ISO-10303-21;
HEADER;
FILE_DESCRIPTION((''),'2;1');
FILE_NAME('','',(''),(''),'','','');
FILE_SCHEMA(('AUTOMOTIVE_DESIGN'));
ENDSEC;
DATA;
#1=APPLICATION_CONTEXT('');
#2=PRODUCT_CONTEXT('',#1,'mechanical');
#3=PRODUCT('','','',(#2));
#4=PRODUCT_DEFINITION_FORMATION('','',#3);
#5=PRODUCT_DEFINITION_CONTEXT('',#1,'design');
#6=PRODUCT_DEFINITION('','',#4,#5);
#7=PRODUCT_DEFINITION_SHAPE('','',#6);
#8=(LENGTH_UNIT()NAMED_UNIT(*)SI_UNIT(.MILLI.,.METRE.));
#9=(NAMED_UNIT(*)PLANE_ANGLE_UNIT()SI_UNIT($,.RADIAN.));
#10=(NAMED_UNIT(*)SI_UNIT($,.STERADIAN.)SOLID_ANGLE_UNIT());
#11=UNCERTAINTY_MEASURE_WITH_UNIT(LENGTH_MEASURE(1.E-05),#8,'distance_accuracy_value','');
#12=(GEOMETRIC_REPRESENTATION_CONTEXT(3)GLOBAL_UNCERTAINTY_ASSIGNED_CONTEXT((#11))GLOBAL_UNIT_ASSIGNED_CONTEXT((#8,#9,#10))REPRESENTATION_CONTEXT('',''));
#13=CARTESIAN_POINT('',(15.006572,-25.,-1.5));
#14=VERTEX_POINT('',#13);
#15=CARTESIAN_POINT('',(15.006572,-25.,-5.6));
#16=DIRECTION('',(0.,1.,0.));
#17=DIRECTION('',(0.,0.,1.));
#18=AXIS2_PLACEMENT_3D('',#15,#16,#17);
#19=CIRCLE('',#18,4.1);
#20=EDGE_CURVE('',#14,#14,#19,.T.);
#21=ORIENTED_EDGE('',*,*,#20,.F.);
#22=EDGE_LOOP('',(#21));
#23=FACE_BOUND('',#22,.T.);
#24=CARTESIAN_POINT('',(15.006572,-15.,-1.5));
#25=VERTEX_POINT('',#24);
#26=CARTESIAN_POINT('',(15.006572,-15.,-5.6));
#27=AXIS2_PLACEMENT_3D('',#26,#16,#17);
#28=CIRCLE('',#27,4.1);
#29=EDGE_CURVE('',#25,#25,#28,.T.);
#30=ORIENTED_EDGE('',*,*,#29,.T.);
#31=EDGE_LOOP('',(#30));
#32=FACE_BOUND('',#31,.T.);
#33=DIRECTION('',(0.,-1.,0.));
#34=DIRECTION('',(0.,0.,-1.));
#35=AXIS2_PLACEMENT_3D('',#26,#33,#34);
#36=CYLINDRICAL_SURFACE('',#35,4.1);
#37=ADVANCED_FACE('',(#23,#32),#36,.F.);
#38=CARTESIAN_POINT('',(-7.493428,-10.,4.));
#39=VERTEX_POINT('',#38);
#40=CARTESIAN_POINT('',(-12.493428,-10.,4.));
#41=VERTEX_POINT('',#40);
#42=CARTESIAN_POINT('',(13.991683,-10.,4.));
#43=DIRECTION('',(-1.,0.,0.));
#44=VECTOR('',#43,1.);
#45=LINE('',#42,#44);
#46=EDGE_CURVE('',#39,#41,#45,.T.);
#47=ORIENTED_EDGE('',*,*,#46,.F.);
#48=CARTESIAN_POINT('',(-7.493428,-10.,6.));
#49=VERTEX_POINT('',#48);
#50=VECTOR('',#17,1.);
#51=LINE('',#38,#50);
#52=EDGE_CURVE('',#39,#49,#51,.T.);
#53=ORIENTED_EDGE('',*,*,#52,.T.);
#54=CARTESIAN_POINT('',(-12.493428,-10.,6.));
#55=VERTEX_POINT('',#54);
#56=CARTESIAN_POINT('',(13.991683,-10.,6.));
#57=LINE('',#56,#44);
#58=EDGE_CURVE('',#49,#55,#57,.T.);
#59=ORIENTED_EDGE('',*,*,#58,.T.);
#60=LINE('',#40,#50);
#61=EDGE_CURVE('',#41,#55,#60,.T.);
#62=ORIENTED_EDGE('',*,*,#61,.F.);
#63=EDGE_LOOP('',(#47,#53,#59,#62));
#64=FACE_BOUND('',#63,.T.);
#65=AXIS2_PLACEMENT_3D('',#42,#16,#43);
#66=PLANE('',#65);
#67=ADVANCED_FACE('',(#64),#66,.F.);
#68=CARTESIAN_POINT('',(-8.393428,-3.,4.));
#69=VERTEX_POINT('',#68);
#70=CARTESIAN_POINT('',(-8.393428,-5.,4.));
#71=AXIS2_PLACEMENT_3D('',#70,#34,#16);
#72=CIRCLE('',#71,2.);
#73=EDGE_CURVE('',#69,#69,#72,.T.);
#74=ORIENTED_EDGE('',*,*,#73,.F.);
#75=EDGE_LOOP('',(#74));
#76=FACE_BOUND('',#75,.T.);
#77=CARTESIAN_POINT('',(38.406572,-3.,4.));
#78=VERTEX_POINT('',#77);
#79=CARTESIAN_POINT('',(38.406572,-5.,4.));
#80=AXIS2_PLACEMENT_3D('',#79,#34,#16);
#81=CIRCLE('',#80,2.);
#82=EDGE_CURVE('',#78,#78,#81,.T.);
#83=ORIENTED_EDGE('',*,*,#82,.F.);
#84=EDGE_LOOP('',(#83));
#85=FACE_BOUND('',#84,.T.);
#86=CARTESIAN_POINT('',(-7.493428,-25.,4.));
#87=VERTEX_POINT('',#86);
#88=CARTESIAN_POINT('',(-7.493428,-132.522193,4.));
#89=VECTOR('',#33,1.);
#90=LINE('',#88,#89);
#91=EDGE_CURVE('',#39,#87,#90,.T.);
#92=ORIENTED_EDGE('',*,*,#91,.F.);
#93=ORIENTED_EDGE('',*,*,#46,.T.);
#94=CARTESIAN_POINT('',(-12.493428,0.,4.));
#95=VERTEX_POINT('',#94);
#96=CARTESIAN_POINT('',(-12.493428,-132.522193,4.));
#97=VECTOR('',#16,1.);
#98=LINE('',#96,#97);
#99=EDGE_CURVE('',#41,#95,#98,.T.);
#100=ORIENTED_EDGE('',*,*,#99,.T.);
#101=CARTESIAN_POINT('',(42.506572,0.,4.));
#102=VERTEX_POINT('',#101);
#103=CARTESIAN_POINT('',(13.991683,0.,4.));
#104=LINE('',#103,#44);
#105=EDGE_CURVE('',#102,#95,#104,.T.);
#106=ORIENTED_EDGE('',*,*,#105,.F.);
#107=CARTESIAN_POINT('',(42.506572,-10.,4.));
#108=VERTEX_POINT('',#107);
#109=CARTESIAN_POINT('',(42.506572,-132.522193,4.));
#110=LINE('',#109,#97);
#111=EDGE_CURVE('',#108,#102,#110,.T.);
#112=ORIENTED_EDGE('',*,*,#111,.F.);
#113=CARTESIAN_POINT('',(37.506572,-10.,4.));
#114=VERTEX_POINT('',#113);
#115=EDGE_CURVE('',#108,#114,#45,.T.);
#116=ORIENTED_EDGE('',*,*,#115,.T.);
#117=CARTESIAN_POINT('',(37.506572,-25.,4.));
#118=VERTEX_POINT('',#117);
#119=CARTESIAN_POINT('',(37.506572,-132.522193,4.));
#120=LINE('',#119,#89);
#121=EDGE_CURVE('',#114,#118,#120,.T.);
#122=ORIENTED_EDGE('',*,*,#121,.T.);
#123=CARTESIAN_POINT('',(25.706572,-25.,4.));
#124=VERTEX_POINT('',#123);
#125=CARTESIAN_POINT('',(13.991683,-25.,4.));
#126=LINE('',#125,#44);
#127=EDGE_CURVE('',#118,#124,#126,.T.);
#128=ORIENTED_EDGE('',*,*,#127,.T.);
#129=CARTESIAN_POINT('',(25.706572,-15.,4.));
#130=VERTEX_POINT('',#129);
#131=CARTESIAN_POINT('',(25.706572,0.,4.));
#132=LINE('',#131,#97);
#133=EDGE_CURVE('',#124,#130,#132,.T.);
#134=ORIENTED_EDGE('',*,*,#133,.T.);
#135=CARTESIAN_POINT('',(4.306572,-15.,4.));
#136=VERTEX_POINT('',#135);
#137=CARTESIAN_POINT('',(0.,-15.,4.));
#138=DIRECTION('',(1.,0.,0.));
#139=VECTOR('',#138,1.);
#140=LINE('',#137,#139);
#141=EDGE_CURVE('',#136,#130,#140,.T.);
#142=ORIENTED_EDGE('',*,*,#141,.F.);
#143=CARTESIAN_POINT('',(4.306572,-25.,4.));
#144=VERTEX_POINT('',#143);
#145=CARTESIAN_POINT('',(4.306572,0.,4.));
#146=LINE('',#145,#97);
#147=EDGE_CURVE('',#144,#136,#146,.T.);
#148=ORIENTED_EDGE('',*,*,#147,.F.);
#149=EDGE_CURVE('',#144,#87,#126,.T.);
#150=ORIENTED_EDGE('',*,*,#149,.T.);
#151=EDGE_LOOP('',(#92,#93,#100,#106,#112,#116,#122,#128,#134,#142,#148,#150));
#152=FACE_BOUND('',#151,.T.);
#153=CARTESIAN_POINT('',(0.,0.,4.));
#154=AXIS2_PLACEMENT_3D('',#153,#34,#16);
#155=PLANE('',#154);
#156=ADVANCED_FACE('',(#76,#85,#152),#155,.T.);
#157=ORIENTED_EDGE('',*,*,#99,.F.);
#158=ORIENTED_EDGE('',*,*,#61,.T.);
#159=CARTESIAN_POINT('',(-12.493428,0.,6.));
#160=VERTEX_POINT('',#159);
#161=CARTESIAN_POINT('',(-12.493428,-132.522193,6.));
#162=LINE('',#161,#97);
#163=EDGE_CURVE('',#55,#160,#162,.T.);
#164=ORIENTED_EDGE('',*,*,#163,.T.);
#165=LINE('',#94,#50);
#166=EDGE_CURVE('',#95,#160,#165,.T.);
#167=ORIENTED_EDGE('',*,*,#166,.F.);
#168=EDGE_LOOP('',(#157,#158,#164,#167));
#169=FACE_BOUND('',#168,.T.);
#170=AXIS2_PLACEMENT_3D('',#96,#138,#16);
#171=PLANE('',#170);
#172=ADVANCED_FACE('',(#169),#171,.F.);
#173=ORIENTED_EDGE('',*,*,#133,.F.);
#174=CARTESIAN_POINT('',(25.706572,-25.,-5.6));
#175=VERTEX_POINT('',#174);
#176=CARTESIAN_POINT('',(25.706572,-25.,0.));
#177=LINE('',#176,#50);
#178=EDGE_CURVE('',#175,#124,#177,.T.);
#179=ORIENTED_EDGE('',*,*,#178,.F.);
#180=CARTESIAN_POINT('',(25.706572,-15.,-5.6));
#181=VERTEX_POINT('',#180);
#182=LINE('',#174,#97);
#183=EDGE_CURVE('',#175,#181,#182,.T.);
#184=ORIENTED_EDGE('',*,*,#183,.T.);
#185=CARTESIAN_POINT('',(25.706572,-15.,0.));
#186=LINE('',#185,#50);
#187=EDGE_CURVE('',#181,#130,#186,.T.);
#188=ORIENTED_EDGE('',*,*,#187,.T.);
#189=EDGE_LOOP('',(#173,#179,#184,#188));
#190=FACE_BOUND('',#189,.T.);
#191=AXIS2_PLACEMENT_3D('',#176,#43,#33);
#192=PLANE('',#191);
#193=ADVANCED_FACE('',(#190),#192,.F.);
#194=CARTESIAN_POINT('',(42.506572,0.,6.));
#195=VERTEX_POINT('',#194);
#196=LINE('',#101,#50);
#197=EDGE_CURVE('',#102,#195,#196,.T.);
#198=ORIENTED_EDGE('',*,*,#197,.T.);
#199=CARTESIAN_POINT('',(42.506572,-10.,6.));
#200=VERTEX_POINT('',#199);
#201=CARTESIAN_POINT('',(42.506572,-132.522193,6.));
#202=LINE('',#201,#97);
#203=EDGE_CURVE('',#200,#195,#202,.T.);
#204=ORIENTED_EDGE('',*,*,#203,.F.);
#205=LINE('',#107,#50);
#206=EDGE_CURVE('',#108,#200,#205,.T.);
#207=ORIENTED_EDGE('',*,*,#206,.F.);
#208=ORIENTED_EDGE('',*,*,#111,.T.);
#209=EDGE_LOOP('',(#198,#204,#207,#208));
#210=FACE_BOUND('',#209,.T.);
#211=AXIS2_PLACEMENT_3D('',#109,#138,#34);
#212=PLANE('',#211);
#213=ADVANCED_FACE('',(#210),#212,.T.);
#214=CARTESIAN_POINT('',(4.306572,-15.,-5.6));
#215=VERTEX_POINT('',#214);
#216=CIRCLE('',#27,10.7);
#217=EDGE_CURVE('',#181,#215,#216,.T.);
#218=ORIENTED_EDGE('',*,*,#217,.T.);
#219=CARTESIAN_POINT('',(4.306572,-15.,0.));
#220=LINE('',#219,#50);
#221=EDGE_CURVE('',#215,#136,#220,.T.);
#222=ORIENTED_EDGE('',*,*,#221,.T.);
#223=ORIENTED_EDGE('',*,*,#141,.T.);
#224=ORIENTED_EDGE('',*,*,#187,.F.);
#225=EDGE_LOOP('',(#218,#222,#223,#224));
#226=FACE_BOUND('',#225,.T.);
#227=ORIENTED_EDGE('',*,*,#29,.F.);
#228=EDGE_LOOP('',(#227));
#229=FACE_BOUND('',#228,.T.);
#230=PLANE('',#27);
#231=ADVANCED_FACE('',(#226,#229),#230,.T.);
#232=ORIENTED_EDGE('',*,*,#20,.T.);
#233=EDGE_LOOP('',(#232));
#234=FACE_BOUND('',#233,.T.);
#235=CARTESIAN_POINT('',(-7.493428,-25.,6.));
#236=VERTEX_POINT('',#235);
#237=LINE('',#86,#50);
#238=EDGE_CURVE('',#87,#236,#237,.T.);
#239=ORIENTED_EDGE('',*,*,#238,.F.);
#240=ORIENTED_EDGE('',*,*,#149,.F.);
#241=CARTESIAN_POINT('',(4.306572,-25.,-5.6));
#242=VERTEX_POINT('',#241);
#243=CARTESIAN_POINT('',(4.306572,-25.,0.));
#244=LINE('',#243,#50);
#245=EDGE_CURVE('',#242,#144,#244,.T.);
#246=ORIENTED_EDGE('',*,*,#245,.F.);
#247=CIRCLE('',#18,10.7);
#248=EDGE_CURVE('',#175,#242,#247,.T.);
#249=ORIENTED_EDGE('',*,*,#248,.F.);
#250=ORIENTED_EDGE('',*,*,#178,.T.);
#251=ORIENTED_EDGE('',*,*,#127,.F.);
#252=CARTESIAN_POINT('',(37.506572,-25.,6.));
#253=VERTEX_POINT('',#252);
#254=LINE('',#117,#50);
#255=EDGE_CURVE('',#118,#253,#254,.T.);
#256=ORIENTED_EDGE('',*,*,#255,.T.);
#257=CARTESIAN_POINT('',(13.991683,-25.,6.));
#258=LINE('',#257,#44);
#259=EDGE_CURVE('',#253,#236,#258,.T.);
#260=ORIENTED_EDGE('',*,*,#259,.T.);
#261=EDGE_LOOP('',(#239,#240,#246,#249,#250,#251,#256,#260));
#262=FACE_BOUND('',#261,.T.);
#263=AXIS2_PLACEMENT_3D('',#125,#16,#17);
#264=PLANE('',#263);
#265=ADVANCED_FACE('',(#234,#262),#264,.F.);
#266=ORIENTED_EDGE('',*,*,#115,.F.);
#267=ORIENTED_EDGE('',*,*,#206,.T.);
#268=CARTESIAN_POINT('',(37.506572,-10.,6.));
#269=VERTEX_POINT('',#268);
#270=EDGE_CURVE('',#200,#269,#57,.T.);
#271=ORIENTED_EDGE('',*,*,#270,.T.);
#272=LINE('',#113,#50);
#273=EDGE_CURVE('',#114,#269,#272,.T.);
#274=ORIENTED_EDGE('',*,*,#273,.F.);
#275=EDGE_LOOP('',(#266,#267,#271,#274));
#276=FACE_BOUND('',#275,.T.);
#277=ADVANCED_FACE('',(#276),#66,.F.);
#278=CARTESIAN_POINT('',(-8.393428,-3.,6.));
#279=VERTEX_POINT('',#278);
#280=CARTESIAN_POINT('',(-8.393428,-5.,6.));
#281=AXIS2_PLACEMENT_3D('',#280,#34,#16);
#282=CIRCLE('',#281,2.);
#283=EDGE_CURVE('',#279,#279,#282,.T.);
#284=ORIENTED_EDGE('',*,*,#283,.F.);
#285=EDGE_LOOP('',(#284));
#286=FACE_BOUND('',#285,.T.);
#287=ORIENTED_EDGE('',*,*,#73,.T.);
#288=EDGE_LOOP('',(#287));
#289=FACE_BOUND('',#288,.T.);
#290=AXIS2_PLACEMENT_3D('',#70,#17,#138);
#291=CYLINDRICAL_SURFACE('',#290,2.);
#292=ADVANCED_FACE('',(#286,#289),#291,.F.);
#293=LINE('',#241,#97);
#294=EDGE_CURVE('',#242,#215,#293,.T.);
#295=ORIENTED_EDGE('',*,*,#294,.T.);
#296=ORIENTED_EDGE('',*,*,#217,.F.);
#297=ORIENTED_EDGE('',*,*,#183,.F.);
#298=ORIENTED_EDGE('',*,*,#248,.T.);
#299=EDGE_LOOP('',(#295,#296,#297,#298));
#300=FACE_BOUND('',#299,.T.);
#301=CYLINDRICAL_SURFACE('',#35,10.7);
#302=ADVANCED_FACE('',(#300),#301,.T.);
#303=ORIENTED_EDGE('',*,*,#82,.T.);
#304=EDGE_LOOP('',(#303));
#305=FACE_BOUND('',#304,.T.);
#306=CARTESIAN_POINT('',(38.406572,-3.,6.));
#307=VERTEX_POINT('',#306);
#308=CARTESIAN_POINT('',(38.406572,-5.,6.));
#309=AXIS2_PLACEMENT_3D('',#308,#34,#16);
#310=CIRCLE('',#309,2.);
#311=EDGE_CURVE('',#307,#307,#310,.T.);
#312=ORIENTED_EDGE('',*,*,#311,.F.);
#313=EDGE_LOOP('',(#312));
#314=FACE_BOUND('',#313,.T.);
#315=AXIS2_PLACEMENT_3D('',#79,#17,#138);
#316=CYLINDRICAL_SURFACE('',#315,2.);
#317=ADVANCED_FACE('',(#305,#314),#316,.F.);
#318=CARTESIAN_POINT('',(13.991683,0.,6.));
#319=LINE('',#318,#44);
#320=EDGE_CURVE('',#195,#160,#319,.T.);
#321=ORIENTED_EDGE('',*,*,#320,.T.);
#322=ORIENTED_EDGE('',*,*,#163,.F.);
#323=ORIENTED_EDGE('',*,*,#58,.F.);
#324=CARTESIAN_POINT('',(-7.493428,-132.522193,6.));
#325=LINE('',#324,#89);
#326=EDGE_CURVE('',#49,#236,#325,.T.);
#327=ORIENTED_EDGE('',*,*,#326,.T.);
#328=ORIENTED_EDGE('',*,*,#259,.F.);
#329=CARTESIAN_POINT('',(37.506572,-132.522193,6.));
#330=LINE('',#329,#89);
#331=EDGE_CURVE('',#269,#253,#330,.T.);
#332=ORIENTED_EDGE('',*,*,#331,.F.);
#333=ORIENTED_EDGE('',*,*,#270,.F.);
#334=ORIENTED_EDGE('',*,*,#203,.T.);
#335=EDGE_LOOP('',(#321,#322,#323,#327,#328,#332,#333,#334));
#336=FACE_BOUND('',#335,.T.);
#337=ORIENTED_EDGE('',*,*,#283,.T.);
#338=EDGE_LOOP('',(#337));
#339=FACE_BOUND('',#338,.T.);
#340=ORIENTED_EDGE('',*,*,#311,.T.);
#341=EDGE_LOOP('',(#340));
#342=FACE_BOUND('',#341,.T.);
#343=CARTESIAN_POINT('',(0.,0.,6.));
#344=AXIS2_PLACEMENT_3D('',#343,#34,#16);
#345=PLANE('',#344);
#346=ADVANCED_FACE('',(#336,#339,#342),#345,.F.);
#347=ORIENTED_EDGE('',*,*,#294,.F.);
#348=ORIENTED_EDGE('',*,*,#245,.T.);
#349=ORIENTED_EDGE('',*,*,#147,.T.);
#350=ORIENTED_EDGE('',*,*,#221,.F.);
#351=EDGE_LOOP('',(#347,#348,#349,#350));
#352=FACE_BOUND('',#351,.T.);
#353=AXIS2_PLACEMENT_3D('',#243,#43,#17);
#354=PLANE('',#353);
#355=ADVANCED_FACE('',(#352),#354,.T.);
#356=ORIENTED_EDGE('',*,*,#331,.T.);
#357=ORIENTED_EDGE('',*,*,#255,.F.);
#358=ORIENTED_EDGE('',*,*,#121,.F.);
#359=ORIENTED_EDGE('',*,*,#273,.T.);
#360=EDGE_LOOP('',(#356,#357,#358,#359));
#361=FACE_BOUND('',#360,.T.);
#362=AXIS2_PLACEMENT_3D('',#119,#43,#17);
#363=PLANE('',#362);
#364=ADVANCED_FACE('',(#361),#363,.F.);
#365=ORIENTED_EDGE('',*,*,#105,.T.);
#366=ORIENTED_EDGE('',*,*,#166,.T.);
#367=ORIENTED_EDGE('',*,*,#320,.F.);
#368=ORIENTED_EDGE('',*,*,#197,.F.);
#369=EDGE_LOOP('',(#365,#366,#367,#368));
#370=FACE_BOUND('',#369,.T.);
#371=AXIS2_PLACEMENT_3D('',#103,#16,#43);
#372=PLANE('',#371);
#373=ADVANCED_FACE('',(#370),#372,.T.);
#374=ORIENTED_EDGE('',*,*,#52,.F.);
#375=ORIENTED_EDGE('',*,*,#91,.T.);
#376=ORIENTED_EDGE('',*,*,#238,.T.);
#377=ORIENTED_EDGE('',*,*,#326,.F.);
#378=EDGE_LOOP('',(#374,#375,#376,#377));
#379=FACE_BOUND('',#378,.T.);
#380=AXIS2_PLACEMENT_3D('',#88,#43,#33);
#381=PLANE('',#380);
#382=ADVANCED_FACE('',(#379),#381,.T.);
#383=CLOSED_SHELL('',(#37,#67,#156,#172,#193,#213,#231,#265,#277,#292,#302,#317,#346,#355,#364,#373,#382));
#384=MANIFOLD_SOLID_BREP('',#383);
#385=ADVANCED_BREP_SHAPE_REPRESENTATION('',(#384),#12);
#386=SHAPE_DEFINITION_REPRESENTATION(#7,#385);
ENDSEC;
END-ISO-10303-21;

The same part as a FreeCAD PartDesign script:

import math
import FreeCAD as App
import Part
import Sketcher


def add_polygon(sketch, points):
    """Adds a closed chain of lines whose ends are joined by coincident constraints."""
    first, n = sketch.GeometryCount, len(points)
    for a, b in zip(points, points[1:] + points[:1]):
        sketch.addGeometry(Part.LineSegment(App.Vector(*a, 0), App.Vector(*b, 0)), False)
    for i in range(n):
        sketch.addConstraint(Sketcher.Constraint("Coincident", first + i, 2, first + (i + 1) % n, 1))

doc = App.newDocument("Part")
body = doc.addObject("PartDesign::Body", "Body")

# Sketch on XY plane
sketch1 = body.newObject("Sketcher::SketchObject", "Sketch")
sketch1.AttachmentSupport = (doc.getObject("XY_Plane"), [""])
sketch1.MapMode = "FlatFace"
sketch1.AttachmentOffset = App.Placement(App.Vector(0, 0, 4), App.Rotation())
add_polygon(sketch1, [(-7.5, -10), (-7.5, -25), (37.5, -25), (37.5, -10), (42.5, -10), (42.5, 0), (-12.5, 0), (-12.5, -10)])  # lines 0-7
sketch1.addGeometry(Part.Circle(App.Vector(38.4, -5, 0), App.Vector(0, 0, 1), 2), False)  # 8
sketch1.addGeometry(Part.Circle(App.Vector(-8.4, -5, 0), App.Vector(0, 0, 1), 2), False)  # 9
sketch1.addConstraint([
    Sketcher.Constraint("Vertical", 0),
    Sketcher.Constraint("Horizontal", 1),
    Sketcher.Constraint("Vertical", 2),
    Sketcher.Constraint("Horizontal", 3),
    Sketcher.Constraint("Vertical", 4),
    Sketcher.Constraint("Horizontal", 5),
    Sketcher.Constraint("Vertical", 6),
    Sketcher.Constraint("Horizontal", 7),
    Sketcher.Constraint("Equal", 8, 9),
    Sketcher.Constraint("PointOnObject", 4, 2, -1),
    Sketcher.Constraint("Horizontal", 8, 3, 9, 3),
    Sketcher.Constraint("Horizontal", 3, 2, 6, 2),
    Sketcher.Constraint("Equal", 3, 7),
    Sketcher.Constraint("Diameter", 8, 4.0),
    Sketcher.Constraint("DistanceX", 1, 1, 1, 2, 45.0),
    Sketcher.Constraint("DistanceX", 3, 1, 3, 2, 5.0),
    Sketcher.Constraint("DistanceY", 0, 2, 0, 1, 15.0),
    Sketcher.Constraint("DistanceY", 4, 1, 4, 2, 10.0),
    Sketcher.Constraint("DistanceY", 8, 3, -1, 1, 5.0),
    Sketcher.Constraint("DistanceX", 9, 3, 8, 3, 46.8),
    Sketcher.Constraint("DistanceX", 9, 3, 0, 2, 0.9),
    Sketcher.Constraint("DistanceX", -1, 1, 8, 3, 38.406572),
])
pad1 = body.newObject("PartDesign::Pad", "Pad")
pad1.Profile = sketch1
pad1.Length = 2

# Sketch on XZ plane
sketch2 = body.newObject("Sketcher::SketchObject", "Sketch001")
sketch2.AttachmentSupport = (doc.getObject("XZ_Plane"), [""])
sketch2.MapMode = "FlatFace"
sketch2.AttachmentOffset = App.Placement(App.Vector(0, 0, 25), App.Rotation())
sketch2.addGeometry([
    Part.Circle(App.Vector(15, -5.6, 0), App.Vector(0, 0, 1), 10.7),
    Part.Circle(App.Vector(15, -5.6, 0), App.Vector(0, 0, 1), 4.1),
], False)
sketch2.addConstraint([
    Sketcher.Constraint("Coincident", 1, 3, 0, 3),
    Sketcher.Constraint("Diameter", 0, 21.4),
    Sketcher.Constraint("Diameter", 1, 8.2),
    Sketcher.Constraint("DistanceY", 0, 3, -1, 1, 5.6),
    Sketcher.Constraint("DistanceX", -1, 1, 0, 3, 15.006572),
])
pad2 = body.newObject("PartDesign::Pad", "Pad001")
pad2.Profile = sketch2
pad2.Length = 10
pad2.Reversed = True

# Sketch on XZ plane
sketch3 = body.newObject("Sketcher::SketchObject", "Sketch002")
sketch3.AttachmentSupport = (doc.getObject("XZ_Plane"), [""])
sketch3.MapMode = "FlatFace"
sketch3.AttachmentOffset = App.Placement(App.Vector(0, 0, 25), App.Rotation())
sketch3.addGeometry([
    Part.LineSegment(App.Vector(25.7, -5.6, 0), App.Vector(19.1, -5.6, 0)),  # 0
    Part.ArcOfCircle(Part.Circle(App.Vector(15, -5.6, 0), App.Vector(0, 0, 1), 4.1), math.radians(0), math.radians(180)),  # 1
    Part.LineSegment(App.Vector(10.9, -5.6, 0), App.Vector(4.3, -5.6, 0)),  # 2
    Part.LineSegment(App.Vector(4.3, -5.6, 0), App.Vector(4.3, 6, 0)),  # 3
    Part.LineSegment(App.Vector(4.3, 6, 0), App.Vector(25.7, 6, 0)),  # 4
    Part.LineSegment(App.Vector(25.7, 6, 0), App.Vector(25.7, -5.6, 0)),  # 5
], False)
sketch3.addConstraint([
    Sketcher.Constraint("Coincident", 0, 2, 1, 1),
    Sketcher.Constraint("Coincident", 1, 2, 2, 1),
    Sketcher.Constraint("Coincident", 2, 2, 3, 1),
    Sketcher.Constraint("Coincident", 3, 2, 4, 1),
    Sketcher.Constraint("Coincident", 4, 2, 5, 1),
    Sketcher.Constraint("Coincident", 5, 2, 0, 1),
    Sketcher.Constraint("Horizontal", 0),
    Sketcher.Constraint("Horizontal", 2),
    Sketcher.Constraint("Vertical", 3),
    Sketcher.Constraint("Horizontal", 4),
    Sketcher.Constraint("Vertical", 5),
    Sketcher.Constraint("Horizontal", 1, 3, 0, 2),
    Sketcher.Constraint("Horizontal", 0, 2, 1, 2),
    Sketcher.Constraint("Equal", 0, 2),
    Sketcher.Constraint("Radius", 1, 4.1),
    Sketcher.Constraint("DistanceX", 0, 2, 0, 1, 6.6),
    Sketcher.Constraint("DistanceY", 3, 1, 3, 2, 11.6),
    Sketcher.Constraint("DistanceY", -1, 1, 3, 2, 6.0),
    Sketcher.Constraint("DistanceX", -1, 1, 1, 3, 15.006572),
])
pad3 = body.newObject("PartDesign::Pad", "Pad002")
pad3.Profile = sketch3
pad3.Length = 10
pad3.Reversed = True

doc.recompute()
